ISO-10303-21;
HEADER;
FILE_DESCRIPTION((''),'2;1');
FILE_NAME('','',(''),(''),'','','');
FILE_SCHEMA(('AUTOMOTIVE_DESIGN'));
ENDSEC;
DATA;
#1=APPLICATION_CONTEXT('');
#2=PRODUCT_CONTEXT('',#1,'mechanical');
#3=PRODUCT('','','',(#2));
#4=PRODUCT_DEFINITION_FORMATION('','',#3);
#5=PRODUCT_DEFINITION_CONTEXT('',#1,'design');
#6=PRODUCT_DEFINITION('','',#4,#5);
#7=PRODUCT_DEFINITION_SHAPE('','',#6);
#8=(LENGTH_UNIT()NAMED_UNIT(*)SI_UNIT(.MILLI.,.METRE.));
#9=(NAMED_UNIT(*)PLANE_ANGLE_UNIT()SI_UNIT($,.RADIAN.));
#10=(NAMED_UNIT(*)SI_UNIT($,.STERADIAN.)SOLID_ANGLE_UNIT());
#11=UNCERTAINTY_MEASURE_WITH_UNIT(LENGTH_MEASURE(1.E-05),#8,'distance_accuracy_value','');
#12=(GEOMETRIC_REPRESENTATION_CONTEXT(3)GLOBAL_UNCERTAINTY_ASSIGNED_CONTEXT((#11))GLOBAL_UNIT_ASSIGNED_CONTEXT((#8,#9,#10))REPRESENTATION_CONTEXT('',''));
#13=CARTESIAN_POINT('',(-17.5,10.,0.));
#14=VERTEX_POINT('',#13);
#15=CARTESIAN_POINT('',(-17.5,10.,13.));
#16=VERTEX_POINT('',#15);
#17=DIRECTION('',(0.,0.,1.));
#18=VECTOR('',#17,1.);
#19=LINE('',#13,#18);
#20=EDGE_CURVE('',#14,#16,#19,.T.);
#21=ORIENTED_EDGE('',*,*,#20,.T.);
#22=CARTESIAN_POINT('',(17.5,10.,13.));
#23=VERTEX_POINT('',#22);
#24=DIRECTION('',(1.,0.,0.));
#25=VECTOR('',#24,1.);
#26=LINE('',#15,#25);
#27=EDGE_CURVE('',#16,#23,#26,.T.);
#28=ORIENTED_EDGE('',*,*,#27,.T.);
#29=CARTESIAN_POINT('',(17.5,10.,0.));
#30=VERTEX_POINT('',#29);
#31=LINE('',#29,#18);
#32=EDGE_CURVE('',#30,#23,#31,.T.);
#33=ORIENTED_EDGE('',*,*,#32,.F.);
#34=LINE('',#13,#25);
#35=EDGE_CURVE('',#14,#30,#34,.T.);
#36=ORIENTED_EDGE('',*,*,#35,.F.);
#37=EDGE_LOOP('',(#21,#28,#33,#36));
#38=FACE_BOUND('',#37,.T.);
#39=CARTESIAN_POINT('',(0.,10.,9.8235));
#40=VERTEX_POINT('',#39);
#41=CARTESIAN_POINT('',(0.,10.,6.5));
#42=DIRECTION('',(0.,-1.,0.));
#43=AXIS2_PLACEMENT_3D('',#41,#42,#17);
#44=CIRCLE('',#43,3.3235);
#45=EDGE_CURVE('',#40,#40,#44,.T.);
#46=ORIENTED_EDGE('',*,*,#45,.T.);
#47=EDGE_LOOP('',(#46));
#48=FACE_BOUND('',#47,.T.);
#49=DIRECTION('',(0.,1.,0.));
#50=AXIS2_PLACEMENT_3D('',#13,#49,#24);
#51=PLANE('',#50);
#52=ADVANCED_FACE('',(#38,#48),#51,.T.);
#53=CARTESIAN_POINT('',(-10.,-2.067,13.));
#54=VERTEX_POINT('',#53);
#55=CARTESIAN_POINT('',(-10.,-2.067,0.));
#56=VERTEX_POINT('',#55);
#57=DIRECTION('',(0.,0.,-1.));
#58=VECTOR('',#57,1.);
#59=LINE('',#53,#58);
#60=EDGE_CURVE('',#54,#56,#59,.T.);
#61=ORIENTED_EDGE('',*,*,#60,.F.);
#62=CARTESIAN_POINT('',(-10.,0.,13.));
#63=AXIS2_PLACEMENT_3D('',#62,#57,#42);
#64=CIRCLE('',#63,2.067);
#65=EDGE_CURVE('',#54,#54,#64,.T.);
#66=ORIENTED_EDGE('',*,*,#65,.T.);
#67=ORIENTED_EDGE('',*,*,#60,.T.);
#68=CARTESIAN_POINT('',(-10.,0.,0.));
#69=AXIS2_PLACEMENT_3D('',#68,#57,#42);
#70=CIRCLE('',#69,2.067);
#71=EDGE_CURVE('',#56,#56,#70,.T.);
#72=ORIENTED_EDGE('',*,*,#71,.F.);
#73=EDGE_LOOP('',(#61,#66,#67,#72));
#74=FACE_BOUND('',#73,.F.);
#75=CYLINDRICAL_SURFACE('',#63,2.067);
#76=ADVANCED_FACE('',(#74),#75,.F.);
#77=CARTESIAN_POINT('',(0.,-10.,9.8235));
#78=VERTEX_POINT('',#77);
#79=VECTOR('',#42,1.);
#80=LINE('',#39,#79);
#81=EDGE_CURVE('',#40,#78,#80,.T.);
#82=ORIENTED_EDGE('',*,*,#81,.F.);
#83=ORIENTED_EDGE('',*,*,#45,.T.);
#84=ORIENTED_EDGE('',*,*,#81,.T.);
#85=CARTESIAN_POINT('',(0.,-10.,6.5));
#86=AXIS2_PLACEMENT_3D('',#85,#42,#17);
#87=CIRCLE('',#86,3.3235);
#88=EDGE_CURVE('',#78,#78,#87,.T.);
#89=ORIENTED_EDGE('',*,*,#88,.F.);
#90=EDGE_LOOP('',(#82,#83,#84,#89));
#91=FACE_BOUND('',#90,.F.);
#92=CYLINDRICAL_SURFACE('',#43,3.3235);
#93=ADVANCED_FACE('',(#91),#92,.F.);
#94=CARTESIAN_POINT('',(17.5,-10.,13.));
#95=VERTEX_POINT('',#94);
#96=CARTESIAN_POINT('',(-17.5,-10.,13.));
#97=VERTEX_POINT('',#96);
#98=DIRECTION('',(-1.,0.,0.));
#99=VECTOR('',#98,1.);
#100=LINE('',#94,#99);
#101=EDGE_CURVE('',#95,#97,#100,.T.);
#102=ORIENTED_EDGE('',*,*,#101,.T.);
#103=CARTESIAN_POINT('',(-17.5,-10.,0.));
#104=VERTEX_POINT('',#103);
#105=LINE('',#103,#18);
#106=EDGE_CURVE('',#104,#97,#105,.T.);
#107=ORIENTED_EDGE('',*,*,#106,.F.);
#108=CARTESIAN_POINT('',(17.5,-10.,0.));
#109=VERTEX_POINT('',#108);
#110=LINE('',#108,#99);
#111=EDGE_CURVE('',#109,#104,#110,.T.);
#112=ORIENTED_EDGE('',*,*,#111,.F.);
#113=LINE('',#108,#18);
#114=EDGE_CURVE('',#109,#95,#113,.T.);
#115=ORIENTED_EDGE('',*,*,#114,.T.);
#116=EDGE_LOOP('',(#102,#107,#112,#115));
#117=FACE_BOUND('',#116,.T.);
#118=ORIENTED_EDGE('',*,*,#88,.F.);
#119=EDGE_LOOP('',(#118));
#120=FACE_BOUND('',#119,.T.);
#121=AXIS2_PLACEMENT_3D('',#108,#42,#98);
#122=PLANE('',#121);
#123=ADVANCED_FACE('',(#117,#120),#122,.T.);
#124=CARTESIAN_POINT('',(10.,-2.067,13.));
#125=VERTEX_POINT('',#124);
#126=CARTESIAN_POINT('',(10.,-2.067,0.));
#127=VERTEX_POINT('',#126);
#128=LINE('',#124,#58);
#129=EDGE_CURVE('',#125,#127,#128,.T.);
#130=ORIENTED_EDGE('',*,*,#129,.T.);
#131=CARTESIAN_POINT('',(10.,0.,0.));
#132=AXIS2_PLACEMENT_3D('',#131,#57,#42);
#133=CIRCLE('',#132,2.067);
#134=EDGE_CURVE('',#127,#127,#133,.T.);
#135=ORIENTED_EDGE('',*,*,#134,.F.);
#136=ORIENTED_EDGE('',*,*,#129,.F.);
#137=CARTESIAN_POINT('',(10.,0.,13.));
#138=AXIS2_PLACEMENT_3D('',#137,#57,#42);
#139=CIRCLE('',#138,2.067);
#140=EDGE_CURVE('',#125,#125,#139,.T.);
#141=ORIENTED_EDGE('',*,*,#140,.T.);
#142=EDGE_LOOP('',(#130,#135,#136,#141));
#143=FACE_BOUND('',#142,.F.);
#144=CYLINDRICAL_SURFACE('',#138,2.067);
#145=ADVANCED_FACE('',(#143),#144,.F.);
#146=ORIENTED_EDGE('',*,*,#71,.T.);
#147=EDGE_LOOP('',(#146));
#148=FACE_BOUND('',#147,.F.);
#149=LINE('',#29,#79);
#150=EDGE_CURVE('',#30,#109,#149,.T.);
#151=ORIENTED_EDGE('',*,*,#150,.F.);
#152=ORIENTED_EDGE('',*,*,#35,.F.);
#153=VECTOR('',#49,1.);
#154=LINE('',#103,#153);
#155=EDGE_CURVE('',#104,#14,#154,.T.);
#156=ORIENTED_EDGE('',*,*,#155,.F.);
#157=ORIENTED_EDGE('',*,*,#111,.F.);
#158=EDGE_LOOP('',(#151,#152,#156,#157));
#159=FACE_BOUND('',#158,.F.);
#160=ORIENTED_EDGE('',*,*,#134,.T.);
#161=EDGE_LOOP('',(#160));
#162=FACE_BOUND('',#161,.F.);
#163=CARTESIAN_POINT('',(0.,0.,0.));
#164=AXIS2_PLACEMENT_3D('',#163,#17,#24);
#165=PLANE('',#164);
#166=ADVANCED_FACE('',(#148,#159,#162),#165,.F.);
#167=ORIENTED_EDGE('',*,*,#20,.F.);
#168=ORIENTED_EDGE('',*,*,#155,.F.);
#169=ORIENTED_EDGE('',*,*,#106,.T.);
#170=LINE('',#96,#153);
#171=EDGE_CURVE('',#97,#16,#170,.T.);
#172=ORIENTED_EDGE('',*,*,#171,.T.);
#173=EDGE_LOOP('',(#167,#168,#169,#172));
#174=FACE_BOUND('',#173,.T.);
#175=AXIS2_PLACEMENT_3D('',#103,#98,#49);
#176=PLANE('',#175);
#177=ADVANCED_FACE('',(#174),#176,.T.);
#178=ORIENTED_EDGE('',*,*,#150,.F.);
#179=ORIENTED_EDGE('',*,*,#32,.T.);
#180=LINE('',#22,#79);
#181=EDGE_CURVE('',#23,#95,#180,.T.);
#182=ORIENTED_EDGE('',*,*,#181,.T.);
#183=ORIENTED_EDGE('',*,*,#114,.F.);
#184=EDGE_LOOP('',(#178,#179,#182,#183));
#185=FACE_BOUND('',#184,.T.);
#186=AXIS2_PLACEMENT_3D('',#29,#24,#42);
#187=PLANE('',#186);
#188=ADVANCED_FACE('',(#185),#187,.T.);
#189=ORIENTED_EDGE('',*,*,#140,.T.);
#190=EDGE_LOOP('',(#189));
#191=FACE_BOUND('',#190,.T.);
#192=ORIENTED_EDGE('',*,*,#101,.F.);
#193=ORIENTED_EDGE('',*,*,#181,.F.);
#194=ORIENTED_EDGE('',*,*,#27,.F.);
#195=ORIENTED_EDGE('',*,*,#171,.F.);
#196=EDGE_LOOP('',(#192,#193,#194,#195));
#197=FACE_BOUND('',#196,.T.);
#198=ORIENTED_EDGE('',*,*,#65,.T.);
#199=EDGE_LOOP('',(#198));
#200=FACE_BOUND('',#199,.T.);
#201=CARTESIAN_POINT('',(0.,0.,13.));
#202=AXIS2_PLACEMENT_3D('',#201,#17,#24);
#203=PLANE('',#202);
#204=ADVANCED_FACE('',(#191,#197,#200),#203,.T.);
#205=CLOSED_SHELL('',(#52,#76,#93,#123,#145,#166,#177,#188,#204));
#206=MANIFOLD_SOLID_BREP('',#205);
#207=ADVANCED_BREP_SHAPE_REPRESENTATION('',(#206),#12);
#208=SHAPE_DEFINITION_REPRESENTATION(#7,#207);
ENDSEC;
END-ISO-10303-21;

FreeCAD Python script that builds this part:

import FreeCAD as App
import Part
import Sketcher

V = App.Vector


def add_polygon(sketch, points):
    """Adds a closed chain of lines whose ends are joined by coincident constraints."""
    first, n = sketch.GeometryCount, len(points)
    for a, b in zip(points, points[1:] + points[:1]):
        sketch.addGeometry(Part.LineSegment(App.Vector(*a, 0), App.Vector(*b, 0)), False)
    for i in range(n):
        sketch.addConstraint(Sketcher.Constraint("Coincident", first + i, 2, first + (i + 1) % n, 1))

doc = App.newDocument("Part")
body = doc.addObject("PartDesign::Body", "Body")

sketch1 = body.newObject("Sketcher::SketchObject", "Sketch")
sketch1.AttachmentSupport = (doc.getObject("XY_Plane"), [""])
sketch1.MapMode = "FlatFace"
add_polygon(sketch1, [(17.5, 10), (-17.5, 10), (-17.5, -10), (17.5, -10)])
sketch1.addConstraint([
    Sketcher.Constraint("Horizontal", 0),
    Sketcher.Constraint("Vertical", 1),
    Sketcher.Constraint("Horizontal", 2),
    Sketcher.Constraint("Vertical", 3),
    Sketcher.Constraint("Symmetric", 0, 2, 2, 2, -1, 1),
    Sketcher.Constraint("DistanceX", 0, 2, 0, 1, 35.0),
    Sketcher.Constraint("DistanceY", 1, 2, 1, 1, 20.0),
])
pad1 = body.newObject("PartDesign::Pad", "Pad")
pad1.Profile = sketch1
pad1.Length = 13

sketch2 = body.newObject("Sketcher::SketchObject", "Sketch001")
sketch2.AttachmentSupport = (doc.getObject("XY_Plane"), [""])
sketch2.MapMode = "FlatFace"
sketch2.AttachmentOffset = App.Placement(V(0, 0, 13), App.Rotation())
sketch2.addGeometry([
    Part.Circle(V(-10, 0, 0), V(0, 0, 1), 2.067),
    Part.Circle(V(10, 0, 0), V(0, 0, 1), 2.067),
], False)
sketch2.addConstraint([
    Sketcher.Constraint("Equal", 0, 1),
    Sketcher.Constraint("Symmetric", 0, 3, 1, 3, -1, 1),
    Sketcher.Constraint("PointOnObject", 0, 3, -1),
    Sketcher.Constraint("Diameter", 0, 4.134),
    Sketcher.Constraint("DistanceX", 0, 3, -1, 1, 10.0),
])
doc.recompute()
hole = body.newObject("PartDesign::Hole", "Hole")
hole.Profile = sketch2
hole.ThreadType = "None"
hole.Diameter = 4.134
hole.DepthType = "ThroughAll"

sketch3 = body.newObject("Sketcher::SketchObject", "Sketch002")
sketch3.AttachmentSupport = (doc.getObject("XZ_Plane"), [""])
sketch3.MapMode = "FlatFace"
sketch3.AttachmentOffset = App.Placement(V(0, 0, -10), App.Rotation())
sketch3.addGeometry(Part.Circle(V(0, 6.5, 0), V(0, 0, 1), 3.3235), False)
sketch3.addConstraint([
    Sketcher.Constraint("PointOnObject", 0, 3, -2),
    Sketcher.Constraint("Diameter", 0, 6.647),
    Sketcher.Constraint("DistanceY", -1, 1, 0, 3, 6.5),
])
doc.recompute()
hole2 = body.newObject("PartDesign::Hole", "Hole001")
hole2.Profile = sketch3
hole2.ThreadType = "None"
hole2.Diameter = 6.647
hole2.DepthType = "ThroughAll"
hole2.Reversed = True

doc.recompute()
